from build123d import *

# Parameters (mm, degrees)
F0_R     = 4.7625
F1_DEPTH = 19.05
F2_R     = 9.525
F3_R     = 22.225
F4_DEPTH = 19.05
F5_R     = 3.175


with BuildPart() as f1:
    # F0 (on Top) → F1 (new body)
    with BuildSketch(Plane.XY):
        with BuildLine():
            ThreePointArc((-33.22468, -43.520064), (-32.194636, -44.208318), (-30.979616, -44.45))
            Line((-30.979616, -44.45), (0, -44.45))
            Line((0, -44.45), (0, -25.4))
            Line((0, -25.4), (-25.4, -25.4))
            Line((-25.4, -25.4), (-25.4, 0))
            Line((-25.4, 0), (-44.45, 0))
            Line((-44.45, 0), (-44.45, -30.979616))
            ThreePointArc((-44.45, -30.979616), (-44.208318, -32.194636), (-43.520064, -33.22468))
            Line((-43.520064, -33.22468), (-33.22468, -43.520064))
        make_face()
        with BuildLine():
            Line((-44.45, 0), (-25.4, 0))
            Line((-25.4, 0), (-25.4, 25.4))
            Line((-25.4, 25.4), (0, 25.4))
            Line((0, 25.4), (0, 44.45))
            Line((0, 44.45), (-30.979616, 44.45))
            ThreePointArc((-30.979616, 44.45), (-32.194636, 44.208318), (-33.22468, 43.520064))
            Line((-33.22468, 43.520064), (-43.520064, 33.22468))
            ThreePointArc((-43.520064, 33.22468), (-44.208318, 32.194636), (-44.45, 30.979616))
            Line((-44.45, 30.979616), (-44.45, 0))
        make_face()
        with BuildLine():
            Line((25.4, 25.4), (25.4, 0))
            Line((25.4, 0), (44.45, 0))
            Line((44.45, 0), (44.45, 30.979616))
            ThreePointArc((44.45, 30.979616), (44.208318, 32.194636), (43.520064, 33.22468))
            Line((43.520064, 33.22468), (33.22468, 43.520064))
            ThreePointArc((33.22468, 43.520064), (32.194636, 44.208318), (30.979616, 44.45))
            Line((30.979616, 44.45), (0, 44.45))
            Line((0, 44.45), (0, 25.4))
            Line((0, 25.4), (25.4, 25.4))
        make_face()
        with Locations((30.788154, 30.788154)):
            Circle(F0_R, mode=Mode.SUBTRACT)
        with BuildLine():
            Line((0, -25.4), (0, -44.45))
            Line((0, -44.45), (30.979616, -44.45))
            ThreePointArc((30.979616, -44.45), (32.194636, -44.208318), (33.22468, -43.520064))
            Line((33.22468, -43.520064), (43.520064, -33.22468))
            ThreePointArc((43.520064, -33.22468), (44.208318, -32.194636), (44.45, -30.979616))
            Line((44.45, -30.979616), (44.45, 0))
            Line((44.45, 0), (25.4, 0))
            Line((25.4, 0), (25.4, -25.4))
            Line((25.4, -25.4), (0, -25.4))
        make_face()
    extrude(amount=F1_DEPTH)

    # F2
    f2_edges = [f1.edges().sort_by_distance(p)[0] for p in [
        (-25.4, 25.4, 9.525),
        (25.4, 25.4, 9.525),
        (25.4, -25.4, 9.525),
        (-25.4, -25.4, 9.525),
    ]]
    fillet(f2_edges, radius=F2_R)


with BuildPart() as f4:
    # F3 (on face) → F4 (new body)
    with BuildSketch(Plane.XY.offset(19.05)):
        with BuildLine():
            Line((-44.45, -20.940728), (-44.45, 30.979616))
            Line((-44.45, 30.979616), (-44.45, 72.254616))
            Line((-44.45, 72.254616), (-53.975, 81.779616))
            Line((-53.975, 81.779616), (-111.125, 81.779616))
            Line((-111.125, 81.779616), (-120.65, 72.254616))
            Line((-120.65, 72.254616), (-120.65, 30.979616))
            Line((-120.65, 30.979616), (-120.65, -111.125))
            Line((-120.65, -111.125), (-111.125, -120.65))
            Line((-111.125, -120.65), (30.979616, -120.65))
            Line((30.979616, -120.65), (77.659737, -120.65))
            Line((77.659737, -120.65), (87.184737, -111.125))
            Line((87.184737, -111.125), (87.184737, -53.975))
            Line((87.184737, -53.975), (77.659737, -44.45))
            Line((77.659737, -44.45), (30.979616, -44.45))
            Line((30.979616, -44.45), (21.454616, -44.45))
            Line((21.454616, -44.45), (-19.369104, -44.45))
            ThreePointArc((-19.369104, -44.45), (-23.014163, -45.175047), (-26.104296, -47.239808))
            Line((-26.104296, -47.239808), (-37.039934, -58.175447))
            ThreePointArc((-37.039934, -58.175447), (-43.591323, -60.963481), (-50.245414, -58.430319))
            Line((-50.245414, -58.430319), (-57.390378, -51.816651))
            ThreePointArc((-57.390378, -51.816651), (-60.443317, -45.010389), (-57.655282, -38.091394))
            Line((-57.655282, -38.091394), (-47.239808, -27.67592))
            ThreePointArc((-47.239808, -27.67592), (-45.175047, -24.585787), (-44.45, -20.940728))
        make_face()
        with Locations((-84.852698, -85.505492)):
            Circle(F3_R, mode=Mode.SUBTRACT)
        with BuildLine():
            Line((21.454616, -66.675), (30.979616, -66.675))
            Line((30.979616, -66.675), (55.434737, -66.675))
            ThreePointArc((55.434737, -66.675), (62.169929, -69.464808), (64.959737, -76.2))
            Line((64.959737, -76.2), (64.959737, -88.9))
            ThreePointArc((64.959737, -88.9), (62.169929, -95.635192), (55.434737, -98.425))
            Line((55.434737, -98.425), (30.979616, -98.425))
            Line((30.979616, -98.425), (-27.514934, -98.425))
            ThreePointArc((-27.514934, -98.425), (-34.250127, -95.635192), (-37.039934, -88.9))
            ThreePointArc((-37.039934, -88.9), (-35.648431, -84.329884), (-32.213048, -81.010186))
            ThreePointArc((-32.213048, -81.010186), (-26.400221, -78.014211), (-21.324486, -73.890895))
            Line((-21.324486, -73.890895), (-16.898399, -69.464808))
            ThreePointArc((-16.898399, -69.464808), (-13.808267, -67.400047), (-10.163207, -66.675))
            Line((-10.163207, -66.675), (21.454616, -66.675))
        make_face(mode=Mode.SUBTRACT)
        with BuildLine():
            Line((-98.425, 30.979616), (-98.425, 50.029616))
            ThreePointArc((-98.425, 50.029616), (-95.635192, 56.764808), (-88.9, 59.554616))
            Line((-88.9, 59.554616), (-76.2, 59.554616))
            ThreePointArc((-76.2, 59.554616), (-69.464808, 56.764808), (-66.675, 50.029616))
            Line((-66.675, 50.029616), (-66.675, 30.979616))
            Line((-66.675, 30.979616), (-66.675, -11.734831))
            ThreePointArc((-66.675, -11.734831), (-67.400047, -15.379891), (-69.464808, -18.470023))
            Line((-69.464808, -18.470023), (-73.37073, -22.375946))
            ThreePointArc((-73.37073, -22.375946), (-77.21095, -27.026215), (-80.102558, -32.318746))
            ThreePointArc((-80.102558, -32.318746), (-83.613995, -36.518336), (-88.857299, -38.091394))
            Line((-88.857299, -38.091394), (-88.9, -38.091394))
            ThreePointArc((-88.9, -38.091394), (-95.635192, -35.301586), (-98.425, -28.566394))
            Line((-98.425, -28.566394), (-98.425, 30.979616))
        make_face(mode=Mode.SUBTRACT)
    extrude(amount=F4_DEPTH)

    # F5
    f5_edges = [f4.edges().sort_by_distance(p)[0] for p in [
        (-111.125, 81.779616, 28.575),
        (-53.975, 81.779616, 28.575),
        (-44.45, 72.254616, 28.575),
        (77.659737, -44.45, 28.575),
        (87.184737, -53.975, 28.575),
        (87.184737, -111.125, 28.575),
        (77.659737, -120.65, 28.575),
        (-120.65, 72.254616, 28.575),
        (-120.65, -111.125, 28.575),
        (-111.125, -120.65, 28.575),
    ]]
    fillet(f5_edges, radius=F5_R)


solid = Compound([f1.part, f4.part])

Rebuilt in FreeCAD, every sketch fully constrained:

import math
import FreeCAD as App
import Part
import Sketcher
Q = App.Units.Quantity


def edges_at(feature, points):
    """Names of the edges that pass closest to the given points."""
    edges = feature.Shape.Edges
    near = lambda p: min(range(len(edges)), key=lambda i: edges[i].distToShape(Part.Vertex(*p))[0])
    return sorted({f"Edge{near(p) + 1}" for p in points})

doc = App.newDocument("Part")
body = doc.addObject("PartDesign::Body", "Body")

# Sketch on XY plane
sketch1 = body.newObject("Sketcher::SketchObject", "Sketch")
sketch1.AttachmentSupport = (doc.getObject("XY_Plane"), [""])
sketch1.MapMode = "FlatFace"
sketch1.addGeometry([
    Part.ArcOfCircle(Part.Circle(App.Vector(-30.979619, -41.275006, 0), App.Vector(0, 0, 1), 3.174994), math.radians(-135.000047), math.radians(-89.999955)),  # 0
    Part.LineSegment(App.Vector(-30.979616, -44.45, 0), App.Vector(30.979616, -44.45, 0)),  # 1
    Part.ArcOfCircle(Part.Circle(App.Vector(30.979619, -41.275006, 0), App.Vector(0, 0, 1), 3.174994), math.radians(-90.000045), math.radians(-44.999953)),  # 2
    Part.LineSegment(App.Vector(33.22468, -43.520064, 0), App.Vector(43.520064, -33.22468, 0)),  # 3
    Part.ArcOfCircle(Part.Circle(App.Vector(41.275006, -30.979619, 0), App.Vector(0, 0, 1), 3.174994), math.radians(-45.000047), math.radians(0.000045)),  # 4
    Part.LineSegment(App.Vector(44.45, -30.979616, 0), App.Vector(44.45, 30.979616, 0)),  # 5
    Part.ArcOfCircle(Part.Circle(App.Vector(41.275006, 30.979619, 0), App.Vector(0, 0, 1), 3.174994), math.radians(-0.000045), math.radians(45.000047)),  # 6
    Part.LineSegment(App.Vector(43.520064, 33.22468, 0), App.Vector(33.22468, 43.520064, 0)),  # 7
    Part.ArcOfCircle(Part.Circle(App.Vector(30.979619, 41.275006, 0), App.Vector(0, 0, 1), 3.174994), math.radians(44.999953), math.radians(90.000045)),  # 8
    Part.LineSegment(App.Vector(30.979616, 44.45, 0), App.Vector(-30.979616, 44.45, 0)),  # 9
    Part.ArcOfCircle(Part.Circle(App.Vector(-30.979619, 41.275006, 0), App.Vector(0, 0, 1), 3.174994), math.radians(89.999955), math.radians(135.000047)),  # 10
    Part.LineSegment(App.Vector(-33.22468, 43.520064, 0), App.Vector(-43.520064, 33.22468, 0)),  # 11
    Part.ArcOfCircle(Part.Circle(App.Vector(-41.275006, 30.979619, 0), App.Vector(0, 0, 1), 3.174994), math.radians(134.999953), math.radians(180.000045)),  # 12
    Part.LineSegment(App.Vector(-44.45, 30.979616, 0), App.Vector(-44.45, -30.979616, 0)),  # 13
    Part.ArcOfCircle(Part.Circle(App.Vector(-41.275006, -30.979619, 0), App.Vector(0, 0, 1), 3.174994), math.radians(179.999955), math.radians(225.000047)),  # 14
    Part.LineSegment(App.Vector(-43.520064, -33.22468, 0), App.Vector(-33.22468, -43.520064, 0)),  # 15
    Part.LineSegment(App.Vector(-25.4, -25.4, 0), App.Vector(-25.4, 25.4, 0)),  # 16
    Part.LineSegment(App.Vector(-25.4, 25.4, 0), App.Vector(25.4, 25.4, 0)),  # 17
    Part.LineSegment(App.Vector(25.4, 25.4, 0), App.Vector(25.4, -25.4, 0)),  # 18
    Part.LineSegment(App.Vector(25.4, -25.4, 0), App.Vector(-25.4, -25.4, 0)),  # 19
    Part.Circle(App.Vector(30.788154, 30.788154, 0), App.Vector(0, 0, 1), 4.7625),  # 20
], False)
sketch1.addConstraint([
    Sketcher.Constraint("Tangent", 0, 2, 1, 1),
    Sketcher.Constraint("Tangent", 1, 2, 2, 1),
    Sketcher.Constraint("Tangent", 2, 2, 3, 1),
    Sketcher.Constraint("Tangent", 3, 2, 4, 1),
    Sketcher.Constraint("Tangent", 4, 2, 5, 1),
    Sketcher.Constraint("Tangent", 5, 2, 6, 1),
    Sketcher.Constraint("Tangent", 6, 2, 7, 1),
    Sketcher.Constraint("Tangent", 7, 2, 8, 1),
    Sketcher.Constraint("Tangent", 8, 2, 9, 1),
    Sketcher.Constraint("Tangent", 9, 2, 10, 1),
    Sketcher.Constraint("Tangent", 10, 2, 11, 1),
    Sketcher.Constraint("Tangent", 11, 2, 12, 1),
    Sketcher.Constraint("Tangent", 12, 2, 13, 1),
    Sketcher.Constraint("Tangent", 13, 2, 14, 1),
    Sketcher.Constraint("Tangent", 14, 2, 15, 1),
    Sketcher.Constraint("Tangent", 15, 2, 0, 1),
    Sketcher.Constraint("Coincident", 16, 2, 17, 1),
    Sketcher.Constraint("Coincident", 17, 2, 18, 1),
    Sketcher.Constraint("Coincident", 18, 2, 19, 1),
    Sketcher.Constraint("Coincident", 19, 2, 16, 1),
    Sketcher.Constraint("Horizontal", 1),
    Sketcher.Constraint("Vertical", 5),
    Sketcher.Constraint("Horizontal", 9),
    Sketcher.Constraint("Vertical", 13),
    Sketcher.Constraint("Vertical", 16),
    Sketcher.Constraint("Horizontal", 17),
    Sketcher.Constraint("Vertical", 18),
    Sketcher.Constraint("Horizontal", 19),
    Sketcher.Constraint("Equal", 0, 2),
    Sketcher.Constraint("Equal", 2, 4),
    Sketcher.Constraint("Equal", 4, 6),
    Sketcher.Constraint("Equal", 6, 8),
    Sketcher.Constraint("Equal", 8, 10),
    Sketcher.Constraint("Equal", 10, 12),
    Sketcher.Constraint("Equal", 12, 14),
    Sketcher.Constraint("Symmetric", 0, 3, 8, 3, -1, 1),
    Sketcher.Constraint("Symmetric", 4, 3, 12, 3, -1, 1),
    Sketcher.Constraint("Symmetric", 16, 2, 18, 2, -1, 1),
    Sketcher.Constraint("Symmetric", 7, 2, 10, 2, -2),
    Sketcher.Constraint("Symmetric", 3, 2, 14, 2, -2),
    Sketcher.Constraint("Perpendicular", 3, 7),
    Sketcher.Constraint("Equal", 9, 5),
    Sketcher.Constraint("Equal", 19, 16),
    Sketcher.Constraint("DistanceX", 17, 1, 17, 2, Q("2 in")),
    Sketcher.Constraint("Diameter", 20, Q("0.375 in")),
    Sketcher.Constraint("DistanceY", 0, 2, -1, 1, Q("1.75 in")),
    Sketcher.Constraint("Radius", 0, 3.174994),
    Sketcher.Constraint("DistanceX", 0, 3, 2, 2, 64.204299),
    Sketcher.Constraint("DistanceY", 2, 3, 20, 3, 72.06316),
    Sketcher.Constraint("DistanceX", 20, 3, 6, 2, 12.73191),
])
pad1 = body.newObject("PartDesign::Pad", "Pad")
pad1.Profile = sketch1
pad1.Length = Q("0.75 in")
doc.recompute()

fillet = body.newObject("PartDesign::Fillet", "Fillet")
fillet.Base = (pad1, edges_at(pad1, [
    (-25.4, 25.4, 9.525),
    (25.4, 25.4, 9.525),
    (25.4, -25.4, 9.525),
    (-25.4, -25.4, 9.525),
]))
fillet.Radius = Q("0.375 in")
body2 = doc.addObject("PartDesign::Body", "Body001")

# Sketch on XY plane
sketch2 = body2.newObject("Sketcher::SketchObject", "Sketch001")
sketch2.AttachmentSupport = (doc.getObject("XY_Plane001"), [""])
sketch2.MapMode = "FlatFace"
sketch2.AttachmentOffset = App.Placement(App.Vector(0, 0, 0.75 * 25.4), App.Rotation())
sketch2.addGeometry([
    Part.LineSegment(App.Vector(-44.45, -20.940728, 0), App.Vector(-44.45, 72.254616, 0)),  # 0
    Part.LineSegment(App.Vector(-44.45, 72.254616, 0), App.Vector(-53.975, 81.779616, 0)),  # 1
    Part.LineSegment(App.Vector(-53.975, 81.779616, 0), App.Vector(-111.125, 81.779616, 0)),  # 2
    Part.LineSegment(App.Vector(-111.125, 81.779616, 0), App.Vector(-120.65, 72.254616, 0)),  # 3
    Part.LineSegment(App.Vector(-120.65, 72.254616, 0), App.Vector(-120.65, -111.125, 0)),  # 4
    Part.LineSegment(App.Vector(-120.65, -111.125, 0), App.Vector(-111.125, -120.65, 0)),  # 5
    Part.LineSegment(App.Vector(-111.125, -120.65, 0), App.Vector(77.659737, -120.65, 0)),  # 6
    Part.LineSegment(App.Vector(77.659737, -120.65, 0), App.Vector(87.184737, -111.125, 0)),  # 7
    Part.LineSegment(App.Vector(87.184737, -111.125, 0), App.Vector(87.184737, -53.975, 0)),  # 8
    Part.LineSegment(App.Vector(87.184737, -53.975, 0), App.Vector(77.659737, -44.45, 0)),  # 9
    Part.LineSegment(App.Vector(77.659737, -44.45, 0), App.Vector(-19.369104, -44.45, 0)),  # 10
    Part.ArcOfCircle(Part.Circle(App.Vector(-19.369105, -53.974997, 0), App.Vector(0, 0, 1), 9.524997), math.radians(89.999994), math.radians(135.000008)),  # 11
    Part.LineSegment(App.Vector(-26.104296, -47.239808, 0), App.Vector(-37.039934, -58.175447, 0)),  # 12
    Part.ArcOfCircle(Part.Circle(App.Vector(-43.775126, -51.440254, 0), App.Vector(0, 0, 1), 9.525001), math.radians(-132.788599), math.radians(-45.000004)),  # 13
    Part.LineSegment(App.Vector(-50.245414, -58.430319, 0), App.Vector(-57.390378, -51.816651, 0)),  # 14
    Part.ArcOfCircle(Part.Circle(App.Vector(-50.920091, -44.826586, 0), App.Vector(0, 0, 1), 9.524999), math.radians(134.999993), math.radians(227.211404)),  # 15
    Part.LineSegment(App.Vector(-57.655282, -38.091394, 0), App.Vector(-47.239808, -27.67592, 0)),  # 16
    Part.ArcOfCircle(Part.Circle(App.Vector(-53.974997, -20.940729, 0), App.Vector(0, 0, 1), 9.524997), math.radians(-45.000008), math.radians(0.000006)),  # 17
    Part.Circle(App.Vector(-84.852698, -85.505492, 0), App.Vector(0, 0, 1), 22.225),  # 18
    Part.LineSegment(App.Vector(-10.163207, -66.675, 0), App.Vector(55.434737, -66.675, 0)),  # 19
    Part.ArcOfCircle(Part.Circle(App.Vector(55.434737, -76.2, 0), App.Vector(0, 0, 1), 9.525), math.radians(0.000002), math.radians(89.999998)),  # 20
    Part.LineSegment(App.Vector(64.959737, -76.2, 0), App.Vector(64.959737, -88.9, 0)),  # 21
    Part.ArcOfCircle(Part.Circle(App.Vector(55.434737, -88.9, 0), App.Vector(0, 0, 1), 9.525), math.radians(-89.999998), math.radians(-0.000002)),  # 22
    Part.LineSegment(App.Vector(55.434737, -98.425, 0), App.Vector(-27.514934, -98.425, 0)),  # 23
    Part.ArcOfCircle(Part.Circle(App.Vector(-27.514935, -88.900001, 0), App.Vector(0, 0, 1), 9.524999), math.radians(179.999992), math.radians(270.000008)),  # 24
    Part.ArcOfCircle(Part.Circle(App.Vector(-27.523366, -89.300693, 0), App.Vector(0, 0, 1), 9.525), math.radians(119.495491), math.radians(177.589)),  # 25
    Part.ArcOfCircle(Part.Circle(App.Vector(-43.775129, -51.440249, 0), App.Vector(0, 0, 1), 31.750006), math.radians(-68.644105), math.radians(-45.000003)),  # 26
    Part.LineSegment(App.Vector(-21.324486, -73.890895, 0), App.Vector(-16.898399, -69.464808, 0)),  # 27
    Part.ArcOfCircle(Part.Circle(App.Vector(-10.16321, -76.199993, 0), App.Vector(0, 0, 1), 9.524993), math.radians(89.999983), math.radians(135.000019)),  # 28
    Part.LineSegment(App.Vector(-98.425, -28.566394, 0), App.Vector(-98.425, 50.029616, 0)),  # 29
    Part.ArcOfCircle(Part.Circle(App.Vector(-88.9, 50.029616, 0), App.Vector(0, 0, 1), 9.525), math.radians(90.000002), math.radians(179.999998)),  # 30
    Part.LineSegment(App.Vector(-88.9, 59.554616, 0), App.Vector(-76.2, 59.554616, 0)),  # 31
    Part.ArcOfCircle(Part.Circle(App.Vector(-76.2, 50.029616, 0), App.Vector(0, 0, 1), 9.525), math.radians(0.000002), math.radians(89.999998)),  # 32
    Part.LineSegment(App.Vector(-66.675, 50.029616, 0), App.Vector(-66.675, -11.734831, 0)),  # 33
    Part.ArcOfCircle(Part.Circle(App.Vector(-76.199993, -11.734834, 0), App.Vector(0, 0, 1), 9.524993), math.radians(-45.000019), math.radians(0.000017)),  # 34
    Part.LineSegment(App.Vector(-69.464808, -18.470023, 0), App.Vector(-73.37073, -22.375946, 0)),  # 35
    Part.ArcOfCircle(Part.Circle(App.Vector(-50.92012, -44.826567, 0), App.Vector(0, 0, 1), 31.749965), math.radians(134.999986), math.radians(156.799648)),  # 36
    Part.ArcOfCircle(Part.Circle(App.Vector(-88.857301, -28.566391, 0), App.Vector(0, 0, 1), 9.525003), math.radians(-89.99999), math.radians(-23.200376)),  # 37
    Part.LineSegment(App.Vector(-88.857299, -38.091394, 0), App.Vector(-88.9, -38.091394, 0)),  # 38
    Part.ArcOfCircle(Part.Circle(App.Vector(-88.9, -28.566394, 0), App.Vector(0, 0, 1), 9.525), math.radians(-179.999998), math.radians(-90.000002)),  # 39
], False)
sketch2.addConstraint([
    Sketcher.Constraint("Coincident", 0, 2, 1, 1),
    Sketcher.Constraint("Coincident", 1, 2, 2, 1),
    Sketcher.Constraint("Coincident", 2, 2, 3, 1),
    Sketcher.Constraint("Coincident", 3, 2, 4, 1),
    Sketcher.Constraint("Coincident", 4, 2, 5, 1),
    Sketcher.Constraint("Coincident", 5, 2, 6, 1),
    Sketcher.Constraint("Coincident", 6, 2, 7, 1),
    Sketcher.Constraint("Coincident", 7, 2, 8, 1),
    Sketcher.Constraint("Coincident", 8, 2, 9, 1),
    Sketcher.Constraint("Coincident", 9, 2, 10, 1),
    Sketcher.Constraint("Coincident", 10, 2, 11, 1),
    Sketcher.Constraint("Coincident", 11, 2, 12, 1),
    Sketcher.Constraint("Coincident", 12, 2, 13, 2),
    Sketcher.Constraint("Coincident", 13, 1, 14, 1),
    Sketcher.Constraint("Coincident", 14, 2, 15, 2),
    Sketcher.Constraint("Coincident", 15, 1, 16, 1),
    Sketcher.Constraint("Coincident", 16, 2, 17, 1),
    Sketcher.Constraint("Coincident", 17, 2, 0, 1),
    Sketcher.Constraint("Coincident", 19, 2, 20, 2),
    Sketcher.Constraint("Coincident", 20, 1, 21, 1),
    Sketcher.Constraint("Coincident", 21, 2, 22, 2),
    Sketcher.Constraint("Coincident", 22, 1, 23, 1),
    Sketcher.Constraint("Coincident", 23, 2, 24, 2),
    Sketcher.Constraint("Coincident", 24, 1, 25, 2),
    Sketcher.Constraint("Coincident", 25, 1, 26, 1),
    Sketcher.Constraint("Coincident", 26, 2, 27, 1),
    Sketcher.Constraint("Coincident", 27, 2, 28, 2),
    Sketcher.Constraint("Coincident", 28, 1, 19, 1),
    Sketcher.Constraint("Coincident", 29, 2, 30, 2),
    Sketcher.Constraint("Coincident", 30, 1, 31, 1),
    Sketcher.Constraint("Coincident", 31, 2, 32, 2),
    Sketcher.Constraint("Coincident", 32, 1, 33, 1),
    Sketcher.Constraint("Coincident", 33, 2, 34, 2),
    Sketcher.Constraint("Coincident", 34, 1, 35, 1),
    Sketcher.Constraint("Coincident", 35, 2, 36, 1),
    Sketcher.Constraint("Coincident", 36, 2, 37, 2),
    Sketcher.Constraint("Coincident", 37, 1, 38, 1),
    Sketcher.Constraint("Coincident", 38, 2, 39, 2),
    Sketcher.Constraint("Coincident", 39, 1, 29, 1),
    Sketcher.Constraint("Vertical", 0),
    Sketcher.Constraint("Horizontal", 2),
    Sketcher.Constraint("Vertical", 4),
    Sketcher.Constraint("Horizontal", 6),
    Sketcher.Constraint("Vertical", 8),
    Sketcher.Constraint("Horizontal", 10),
    Sketcher.Constraint("Horizontal", 19),
    Sketcher.Constraint("Vertical", 21),
    Sketcher.Constraint("Horizontal", 23),
    Sketcher.Constraint("Vertical", 29),
    Sketcher.Constraint("Horizontal", 31),
    Sketcher.Constraint("Vertical", 33),
    Sketcher.Constraint("Horizontal", 38),
    Sketcher.Constraint("Coincident", 26, 3, 13, 3),
    Sketcher.Constraint("Diameter", 18, Q("1.75 in")),
    Sketcher.Constraint("DistanceX", 31, 1, 31, 2, Q("0.5 in")),
    Sketcher.Constraint("DistanceY", 21, 2, 21, 1, Q("0.5 in")),
    Sketcher.Constraint("DistanceY", 20, 3, -1, 1, Q("3 in")),
    Sketcher.Constraint("DistanceX", 32, 3, -1, 1, Q("3 in")),
    Sketcher.Constraint("DistanceY", 20, 1, -1, 1, Q("3 in")),
    Sketcher.Constraint("DistanceX", 31, 2, -1, 1, Q("3 in")),
    Sketcher.Constraint("Radius", 11, Q("0.3749999 in")),
    Sketcher.Constraint("Radius", 13, Q("0.375 in")),
    Sketcher.Constraint("Radius", 15, Q("0.375 in")),
    Sketcher.Constraint("Radius", 17, Q("0.3749999 in")),
    Sketcher.Constraint("Radius", 20, Q("0.375 in")),
    Sketcher.Constraint("Radius", 22, Q("0.375 in")),
    Sketcher.Constraint("Radius", 24, Q("0.3749999 in")),
    Sketcher.Constraint("Radius", 25, Q("0.375 in")),
    Sketcher.Constraint("Radius", 30, Q("0.375 in")),
    Sketcher.Constraint("Radius", 32, Q("0.375 in")),
    Sketcher.Constraint("Radius", 37, Q("0.3750001 in")),
    Sketcher.Constraint("Radius", 39, Q("0.375 in")),
    Sketcher.Constraint("DistanceX", 3, 2, 0, 2, Q("3 in")),
    Sketcher.Constraint("DistanceY", 6, 2, 9, 2, Q("3 in")),
    Sketcher.Constraint("DistanceX", 2, 2, 2, 1, Q("2.25 in")),
    Sketcher.Constraint("DistanceY", 8, 1, 8, 2, Q("2.25 in")),
    Sketcher.Constraint("DistanceY", 22, 3, -1, 1, Q("3.5 in")),
    Sketcher.Constraint("DistanceX", 30, 3, -1, 1, Q("3.5 in")),
    Sketcher.Constraint("DistanceY", 24, 1, -1, 1, Q("3.5 in")),
    Sketcher.Constraint("DistanceX", 38, 2, -1, 1, Q("3.5 in")),
    Sketcher.Constraint("DistanceY", 19, 2, 8, 2, Q("0.5 in")),
    Sketcher.Constraint("DistanceX", 20, 1, 9, 2, Q("0.5 in")),
    Sketcher.Constraint("DistanceY", 28, 1, 11, 3, Q("0.5000001 in")),
    Sketcher.Constraint("DistanceX", 2, 2, 29, 2, Q("0.5 in")),
    Sketcher.Constraint("DistanceY", 30, 1, 3, 2, Q("0.5 in")),
    Sketcher.Constraint("DistanceX", 33, 2, 17, 3, Q("0.5000001 in")),
    Sketcher.Constraint("DistanceY", 32, 3, 1, 2, Q("1.25 in")),
    Sketcher.Constraint("DistanceX", 22, 3, 7, 2, Q("1.25 in")),
    Sketcher.Constraint("DistanceX", 19, 2, 8, 2, Q("1.25 in")),
    Sketcher.Constraint("DistanceY", 29, 2, 2, 2, Q("1.25 in")),
    Sketcher.Constraint("DistanceY", 4, 2, -1, 1, Q("4.375 in")),
    Sketcher.Constraint("DistanceX", 5, 2, -1, 1, Q("4.375 in")),
    Sketcher.Constraint("DistanceY", 28, 3, 11, 3, Q("0.8749998 in")),
    Sketcher.Constraint("DistanceX", 34, 3, 17, 3, Q("0.8749998 in")),
    Sketcher.Constraint("DistanceY", 32, 3, 0, 2, Q("0.875 in")),
    Sketcher.Constraint("DistanceX", 22, 3, 6, 2, Q("0.875 in")),
    Sketcher.Constraint("DistanceX", 15, 3, 11, 2, Q("0.9769998 in")),
    Sketcher.Constraint("DistanceX", 22, 1, 21, 2, Q("0.375 in")),
    Sketcher.Constraint("DistanceX", 12, 2, 23, 2, Q("0.375 in")),
    Sketcher.Constraint("DistanceX", 24, 1, 23, 2, Q("0.375 in")),
    Sketcher.Constraint("DistanceY", 32, 1, 31, 2, Q("0.375 in")),
    Sketcher.Constraint("DistanceY", 38, 2, 39, 1, Q("0.375 in")),
    Sketcher.Constraint("DistanceX", 38, 2, 38, 1, 0.042701),
    Sketcher.Constraint("Radius", 26, 31.750006),
    Sketcher.Constraint("Radius", 36, 31.749965),
    Sketcher.Constraint("DistanceX", 13, 3, 20, 3, Q("3.9059001 in")),
    Sketcher.Constraint("DistanceY", 14, 2, 36, 3, Q("0.2752002 in")),
    Sketcher.Constraint("DistanceX", 10, 2, 10, 1, 97.028841),
    Sketcher.Constraint("DistanceX", 23, 2, 23, 1, 82.949671),
    Sketcher.Constraint("DistanceY", 29, 1, 29, 2, 78.59601),
    Sketcher.Constraint("DistanceX", 18, 3, -1, 1, 84.852698),
    Sketcher.Constraint("DistanceX", 37, 3, -1, 1, 88.857301),
    Sketcher.Constraint("DistanceX", 27, 2, -1, 1, 16.898399),
    Sketcher.Constraint("DistanceY", 25, 3, 18, 3, 3.795201),
    Sketcher.Constraint("DistanceY", 25, 3, 28, 3, 13.1007),
    Sketcher.Constraint("DistanceX", 34, 3, 15, 3, 25.279901),
    Sketcher.Constraint("DistanceY", 14, 2, 26, 3, 0.376402),
    Sketcher.Constraint("DistanceY", 36, 2, 35, 2, 9.9428),
    Sketcher.Constraint("Distance", 12, 15.465328),
    Sketcher.Constraint("Distance", 35, 5.523809),
    Sketcher.Constraint("DistanceX", 6, 1, 6, 2, 188.784737),
    Sketcher.Constraint("DistanceX", 19, 1, 19, 2, 65.597944),
    Sketcher.Constraint("DistanceY", 0, 1, 0, 2, 93.195344),
    Sketcher.Constraint("DistanceY", 4, 2, 4, 1, 183.379616),
    Sketcher.Constraint("DistanceY", 33, 2, 33, 1, 61.764447),
    Sketcher.Constraint("DistanceY", 17, 3, -1, 1, 20.940729),
    Sketcher.Constraint("DistanceY", 26, 3, -1, 1, 51.440249),
    Sketcher.Constraint("DistanceX", 28, 3, -1, 1, 10.16321),
    Sketcher.Constraint("DistanceY", 13, 1, -1, 1, 58.430319),
    Sketcher.Constraint("DistanceX", 15, 1, -1, 1, 57.655282),
    Sketcher.Constraint("DistanceY", 16, 2, -1, 1, 27.67592),
    Sketcher.Constraint("DistanceX", 34, 1, -1, 1, 69.464808),
    Sketcher.Constraint("DistanceX", 35, 2, -1, 1, 73.37073),
    Sketcher.Constraint("DistanceY", 11, 3, 15, 3, 9.148411),
    Sketcher.Constraint("DistanceX", 25, 1, 26, 2, 10.888562),
])
pad2 = body2.newObject("PartDesign::Pad", "Pad001")
pad2.Profile = sketch2
pad2.Length = Q("0.75 in")
doc.recompute()

fillet2 = body2.newObject("PartDesign::Fillet", "Fillet001")
fillet2.Base = (pad2, edges_at(pad2, [
    (-111.125, 81.78, 28.575),
    (-53.975, 81.78, 28.575),
    (-44.45, 72.255, 28.575),
    (77.66, -44.45, 28.575),
    (87.185, -53.975, 28.575),
    (87.185, -111.125, 28.575),
    (77.66, -120.65, 28.575),
    (-120.65, 72.255, 28.575),
    (-120.65, -111.125, 28.575),
    (-111.125, -120.65, 28.575),
]))
fillet2.Radius = Q("0.125 in")

doc.recompute()
